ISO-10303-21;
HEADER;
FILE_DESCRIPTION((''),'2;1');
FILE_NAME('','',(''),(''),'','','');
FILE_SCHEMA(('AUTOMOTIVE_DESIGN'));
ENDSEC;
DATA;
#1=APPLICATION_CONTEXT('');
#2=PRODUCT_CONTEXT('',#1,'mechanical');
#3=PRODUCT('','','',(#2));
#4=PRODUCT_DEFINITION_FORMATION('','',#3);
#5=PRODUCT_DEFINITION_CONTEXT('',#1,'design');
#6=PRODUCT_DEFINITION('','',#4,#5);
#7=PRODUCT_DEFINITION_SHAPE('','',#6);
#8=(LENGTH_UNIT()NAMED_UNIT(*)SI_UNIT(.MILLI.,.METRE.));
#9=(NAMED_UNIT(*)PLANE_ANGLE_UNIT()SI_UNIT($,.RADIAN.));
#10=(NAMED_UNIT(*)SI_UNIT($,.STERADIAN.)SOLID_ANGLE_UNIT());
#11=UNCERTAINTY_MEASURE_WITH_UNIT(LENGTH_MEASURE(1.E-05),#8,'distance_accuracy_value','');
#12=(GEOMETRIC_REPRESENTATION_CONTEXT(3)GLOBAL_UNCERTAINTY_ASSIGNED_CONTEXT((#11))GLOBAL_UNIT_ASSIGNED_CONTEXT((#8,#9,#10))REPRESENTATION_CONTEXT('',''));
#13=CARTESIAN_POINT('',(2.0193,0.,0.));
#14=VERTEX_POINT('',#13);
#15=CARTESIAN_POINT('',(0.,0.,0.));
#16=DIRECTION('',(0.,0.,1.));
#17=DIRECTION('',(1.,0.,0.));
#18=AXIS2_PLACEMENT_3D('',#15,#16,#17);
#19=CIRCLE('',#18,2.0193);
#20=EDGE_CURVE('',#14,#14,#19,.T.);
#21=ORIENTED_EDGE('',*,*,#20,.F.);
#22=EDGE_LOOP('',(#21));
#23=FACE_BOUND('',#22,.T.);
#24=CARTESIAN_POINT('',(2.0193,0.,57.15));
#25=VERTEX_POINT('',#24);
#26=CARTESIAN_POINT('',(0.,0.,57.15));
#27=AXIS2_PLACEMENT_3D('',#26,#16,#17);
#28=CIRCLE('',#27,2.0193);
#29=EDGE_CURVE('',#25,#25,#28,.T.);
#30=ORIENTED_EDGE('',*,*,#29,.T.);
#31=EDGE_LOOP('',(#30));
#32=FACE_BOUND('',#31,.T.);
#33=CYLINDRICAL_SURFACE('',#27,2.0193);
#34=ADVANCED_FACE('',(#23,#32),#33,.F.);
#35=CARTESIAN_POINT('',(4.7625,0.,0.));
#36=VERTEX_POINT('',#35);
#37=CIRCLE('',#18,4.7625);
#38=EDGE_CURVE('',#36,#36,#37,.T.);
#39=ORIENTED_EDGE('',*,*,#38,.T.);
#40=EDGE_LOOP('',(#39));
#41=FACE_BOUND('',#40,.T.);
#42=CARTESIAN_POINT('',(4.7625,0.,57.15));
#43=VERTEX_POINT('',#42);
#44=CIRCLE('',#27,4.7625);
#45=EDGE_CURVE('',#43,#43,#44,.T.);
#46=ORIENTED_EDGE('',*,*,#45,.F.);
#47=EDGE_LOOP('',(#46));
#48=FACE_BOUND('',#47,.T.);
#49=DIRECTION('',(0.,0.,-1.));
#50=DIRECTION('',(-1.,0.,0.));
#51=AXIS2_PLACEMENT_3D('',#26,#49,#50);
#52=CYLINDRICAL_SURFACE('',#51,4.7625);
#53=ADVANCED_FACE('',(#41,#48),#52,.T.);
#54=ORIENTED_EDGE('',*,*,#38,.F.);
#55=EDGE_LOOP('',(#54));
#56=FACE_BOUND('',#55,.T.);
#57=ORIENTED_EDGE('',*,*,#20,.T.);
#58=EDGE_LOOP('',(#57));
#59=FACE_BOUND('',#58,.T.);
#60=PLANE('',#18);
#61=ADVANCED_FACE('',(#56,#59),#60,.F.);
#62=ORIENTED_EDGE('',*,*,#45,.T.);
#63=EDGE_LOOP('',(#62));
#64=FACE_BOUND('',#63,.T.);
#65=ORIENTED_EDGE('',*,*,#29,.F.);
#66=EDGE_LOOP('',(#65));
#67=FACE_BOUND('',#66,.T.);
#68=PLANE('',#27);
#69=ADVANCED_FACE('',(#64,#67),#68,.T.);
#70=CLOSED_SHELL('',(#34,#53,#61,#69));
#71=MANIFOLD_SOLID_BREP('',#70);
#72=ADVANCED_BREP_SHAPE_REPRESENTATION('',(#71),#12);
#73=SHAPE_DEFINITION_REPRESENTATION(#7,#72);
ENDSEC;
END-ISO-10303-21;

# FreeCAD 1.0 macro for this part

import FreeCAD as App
import Part
import Sketcher

V = App.Vector
Q = App.Units.Quantity

doc = App.newDocument("Part")
body = doc.addObject("PartDesign::Body", "Body")

sketch1 = body.newObject("Sketcher::SketchObject", "Sketch")
sketch1.AttachmentSupport = (doc.getObject("XY_Plane"), [""])
sketch1.MapMode = "FlatFace"
sketch1.addGeometry(Part.Circle(V(0, 0, 0), V(0, 0, 1), 4.8), False)
sketch1.addConstraint([
    Sketcher.Constraint("Coincident", 0, 3, -1, 1),
    Sketcher.Constraint("Diameter", 0, Q("0.375 in")),
])
pad1 = body.newObject("PartDesign::Pad", "Pad")
pad1.Profile = sketch1
pad1.Length = Q("2.25 in")

sketch2 = body.newObject("Sketcher::SketchObject", "Sketch001")
sketch2.AttachmentSupport = (doc.getObject("XY_Plane"), [""])
sketch2.MapMode = "FlatFace"
sketch2.AttachmentOffset = App.Placement(V(0, 0, 2.25 * 25.4), App.Rotation())
sketch2.addGeometry(Part.Circle(V(0, 0, 0), V(0, 0, 1), 2), False)
sketch2.addConstraint([
    Sketcher.Constraint("Coincident", 0, 3, -1, 1),
    Sketcher.Constraint("Diameter", 0, Q("0.159 in")),
])
doc.recompute()
hole = body.newObject("PartDesign::Hole", "Hole")
hole.Profile = sketch2
hole.ThreadType = "None"
hole.Diameter = Q("0.159 in")
hole.DepthType = "ThroughAll"

sketch3 = body.newObject("Sketcher::SketchObject", "Sketch002")
sketch3.AttachmentSupport = (doc.getObject("XY_Plane"), [""])
sketch3.MapMode = "FlatFace"
sketch3.addGeometry(Part.Circle(V(0, 0, 0), V(0, 0, 1), 2), False)
sketch3.addConstraint([
    Sketcher.Constraint("Coincident", 0, 3, -1, 1),
    Sketcher.Constraint("Diameter", 0, Q("0.159 in")),
])
doc.recompute()
hole2 = body.newObject("PartDesign::Hole", "Hole001")
hole2.Profile = sketch3
hole2.ThreadType = "None"
hole2.Diameter = Q("0.159 in")
hole2.DepthType = "ThroughAll"
hole2.Reversed = True

doc.recompute()
